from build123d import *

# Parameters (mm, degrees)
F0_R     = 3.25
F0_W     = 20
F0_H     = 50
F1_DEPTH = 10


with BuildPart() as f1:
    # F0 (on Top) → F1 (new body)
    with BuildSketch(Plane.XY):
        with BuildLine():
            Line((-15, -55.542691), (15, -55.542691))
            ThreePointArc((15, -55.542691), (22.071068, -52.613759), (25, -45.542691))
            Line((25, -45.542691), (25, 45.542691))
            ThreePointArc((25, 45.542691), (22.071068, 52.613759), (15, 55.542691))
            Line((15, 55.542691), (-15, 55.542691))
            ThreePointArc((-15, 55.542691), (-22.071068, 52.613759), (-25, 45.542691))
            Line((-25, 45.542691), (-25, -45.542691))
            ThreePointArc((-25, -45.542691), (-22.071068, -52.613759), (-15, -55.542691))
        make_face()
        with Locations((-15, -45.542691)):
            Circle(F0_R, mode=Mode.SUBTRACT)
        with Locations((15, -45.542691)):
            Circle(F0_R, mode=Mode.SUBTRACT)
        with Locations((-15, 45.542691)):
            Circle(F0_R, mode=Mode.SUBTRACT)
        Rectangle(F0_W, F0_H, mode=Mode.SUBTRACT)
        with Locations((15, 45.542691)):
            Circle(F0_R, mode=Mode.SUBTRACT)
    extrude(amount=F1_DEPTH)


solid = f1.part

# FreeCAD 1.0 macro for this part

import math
import FreeCAD as App
import Part
import Sketcher
from FreeCAD import Vector
Q = App.Units.Quantity

doc = App.newDocument("Part")
body = doc.addObject("PartDesign::Body", "Body")

# Sketch on XY plane
sketch1 = body.newObject("Sketcher::SketchObject", "Sketch")
sketch1.AttachmentSupport = (doc.getObject("XY_Plane"), [""])
sketch1.MapMode = "FlatFace"
sketch1.addGeometry(Part.LineSegment(Vector(-15, -55.542691, 0), Vector(15, -55.542691, 0)), False)
sketch1.addGeometry(Part.ArcOfCircle(Part.Circle(Vector(15.000001, -45.542692, 0), Vector(0, 0, 1), 9.999999), math.radians(-90.000004), math.radians(0.000004)), False)
sketch1.addGeometry(Part.LineSegment(Vector(25, -45.542691, 0), Vector(25, 45.542691, 0)), False)
sketch1.addGeometry(Part.ArcOfCircle(Part.Circle(Vector(15.000001, 45.542692, 0), Vector(0, 0, 1), 9.999999), math.radians(-0.000004), math.radians(90.000004)), False)
sketch1.addGeometry(Part.LineSegment(Vector(15, 55.542691, 0), Vector(-15, 55.542691, 0)), False)
sketch1.addGeometry(Part.ArcOfCircle(Part.Circle(Vector(-15.000001, 45.542692, 0), Vector(0, 0, 1), 9.999999), math.radians(89.999996), math.radians(180.000004)), False)
sketch1.addGeometry(Part.LineSegment(Vector(-25, 45.542691, 0), Vector(-25, -45.542691, 0)), False)
sketch1.addGeometry(Part.ArcOfCircle(Part.Circle(Vector(-15.000001, -45.542692, 0), Vector(0, 0, 1), 9.999999), math.radians(179.999996), math.radians(270.000004)), False)
sketch1.addGeometry(Part.Circle(Vector(-15, -45.542691, 0), Vector(0, 0, 1), 3.25), False)
sketch1.addGeometry(Part.Circle(Vector(15, -45.542691, 0), Vector(0, 0, 1), 3.25), False)
sketch1.addGeometry(Part.Circle(Vector(-15, 45.542691, 0), Vector(0, 0, 1), 3.25), False)
sketch1.addGeometry(Part.LineSegment(Vector(10, -25, 0), Vector(-10, -25, 0)), False)
sketch1.addGeometry(Part.LineSegment(Vector(-10, -25, 0), Vector(-10, 25, 0)), False)
sketch1.addGeometry(Part.LineSegment(Vector(-10, 25, 0), Vector(10, 25, 0)), False)
sketch1.addGeometry(Part.LineSegment(Vector(10, 25, 0), Vector(10, -25, 0)), False)
sketch1.addGeometry(Part.Circle(Vector(15, 45.542691, 0), Vector(0, 0, 1), 3.25), False)
sketch1.addConstraint(Sketcher.Constraint("Tangent", 0, 2, 1, 1))
sketch1.addConstraint(Sketcher.Constraint("Tangent", 1, 2, 2, 1))
sketch1.addConstraint(Sketcher.Constraint("Tangent", 2, 2, 3, 1))
sketch1.addConstraint(Sketcher.Constraint("Tangent", 3, 2, 4, 1))
sketch1.addConstraint(Sketcher.Constraint("Tangent", 4, 2, 5, 1))
sketch1.addConstraint(Sketcher.Constraint("Tangent", 5, 2, 6, 1))
sketch1.addConstraint(Sketcher.Constraint("Tangent", 6, 2, 7, 1))
sketch1.addConstraint(Sketcher.Constraint("Tangent", 7, 2, 0, 1))
sketch1.addConstraint(Sketcher.Constraint("Coincident", 11, 2, 12, 1))
sketch1.addConstraint(Sketcher.Constraint("Coincident", 12, 2, 13, 1))
sketch1.addConstraint(Sketcher.Constraint("Coincident", 13, 2, 14, 1))
sketch1.addConstraint(Sketcher.Constraint("Coincident", 14, 2, 11, 1))
sketch1.addConstraint(Sketcher.Constraint("Horizontal", 0))
sketch1.addConstraint(Sketcher.Constraint("Vertical", 2))
sketch1.addConstraint(Sketcher.Constraint("Horizontal", 4))
sketch1.addConstraint(Sketcher.Constraint("Vertical", 6))
sketch1.addConstraint(Sketcher.Constraint("Horizontal", 11))
sketch1.addConstraint(Sketcher.Constraint("Vertical", 12))
sketch1.addConstraint(Sketcher.Constraint("Horizontal", 13))
sketch1.addConstraint(Sketcher.Constraint("Vertical", 14))
sketch1.addConstraint(Sketcher.Constraint("Coincident", 8, 3, 7, 3))
sketch1.addConstraint(Sketcher.Constraint("Coincident", 9, 3, 1, 3))
sketch1.addConstraint(Sketcher.Constraint("Coincident", 10, 3, 5, 3))
sketch1.addConstraint(Sketcher.Constraint("Coincident", 15, 3, 3, 3))
sketch1.addConstraint(Sketcher.Constraint("Equal", 1, 3))
sketch1.addConstraint(Sketcher.Constraint("Equal", 3, 5))
sketch1.addConstraint(Sketcher.Constraint("Equal", 5, 7))
sketch1.addConstraint(Sketcher.Constraint("Equal", 8, 9))
sketch1.addConstraint(Sketcher.Constraint("Equal", 9, 10))
sketch1.addConstraint(Sketcher.Constraint("Equal", 10, 15))
sketch1.addConstraint(Sketcher.Constraint("Symmetric", 1, 3, 5, 3, -1, 1))
sketch1.addConstraint(Sketcher.Constraint("Symmetric", 11, 2, 13, 2, -1, 1))
sketch1.addConstraint(Sketcher.Constraint("Radius", 1, Q("9.999999 mm")))
sketch1.addConstraint(Sketcher.Constraint("Diameter", 8, Q("6.5 mm")))
sketch1.addConstraint(Sketcher.Constraint("DistanceX", 0, 1, 0, 2, Q("30 mm")))
sketch1.addConstraint(Sketcher.Constraint("DistanceX", 11, 2, 11, 1, Q("20 mm")))
sketch1.addConstraint(Sketcher.Constraint("DistanceY", 12, 1, 12, 2, Q("50 mm")))
sketch1.addConstraint(Sketcher.Constraint("DistanceY", 2, 1, 2, 2, Q("91.085382 mm")))
pad1 = body.newObject("PartDesign::Pad", "Pad")
pad1.Profile = sketch1
pad1.Length = 10

doc.recompute()
